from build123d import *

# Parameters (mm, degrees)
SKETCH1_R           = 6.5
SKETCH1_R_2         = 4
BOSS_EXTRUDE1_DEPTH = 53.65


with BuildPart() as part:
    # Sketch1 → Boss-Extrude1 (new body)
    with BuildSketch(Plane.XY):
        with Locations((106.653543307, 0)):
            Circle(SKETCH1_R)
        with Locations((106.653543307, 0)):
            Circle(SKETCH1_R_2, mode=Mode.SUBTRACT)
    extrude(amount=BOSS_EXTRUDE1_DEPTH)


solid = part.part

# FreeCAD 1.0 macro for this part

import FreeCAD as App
import Part
import Sketcher

V = App.Vector

doc = App.newDocument("Part")
body = doc.addObject("PartDesign::Body", "Body")

# Sketch on XY plane
sketch1 = body.newObject("Sketcher::SketchObject", "Sketch")
sketch1.AttachmentSupport = (doc.getObject("XY_Plane"), [""])
sketch1.MapMode = "FlatFace"
sketch1.addGeometry([
    Part.Circle(V(106.7, 0, 0), V(0, 0, 1), 6.5),
    Part.Circle(V(106.7, 0, 0), V(0, 0, 1), 4),
], False)
sketch1.addConstraint([
    Sketcher.Constraint("Coincident", 1, 3, 0, 3),
    Sketcher.Constraint("PointOnObject", 0, 3, -1),
    Sketcher.Constraint("Diameter", 0, 13.0),
    Sketcher.Constraint("Diameter", 1, 8.0),
    Sketcher.Constraint("DistanceX", -1, 1, 0, 3, 106.653543),
])
pad1 = body.newObject("PartDesign::Pad", "Pad")
pad1.Profile = sketch1
pad1.Length = 53.65

doc.recompute()
